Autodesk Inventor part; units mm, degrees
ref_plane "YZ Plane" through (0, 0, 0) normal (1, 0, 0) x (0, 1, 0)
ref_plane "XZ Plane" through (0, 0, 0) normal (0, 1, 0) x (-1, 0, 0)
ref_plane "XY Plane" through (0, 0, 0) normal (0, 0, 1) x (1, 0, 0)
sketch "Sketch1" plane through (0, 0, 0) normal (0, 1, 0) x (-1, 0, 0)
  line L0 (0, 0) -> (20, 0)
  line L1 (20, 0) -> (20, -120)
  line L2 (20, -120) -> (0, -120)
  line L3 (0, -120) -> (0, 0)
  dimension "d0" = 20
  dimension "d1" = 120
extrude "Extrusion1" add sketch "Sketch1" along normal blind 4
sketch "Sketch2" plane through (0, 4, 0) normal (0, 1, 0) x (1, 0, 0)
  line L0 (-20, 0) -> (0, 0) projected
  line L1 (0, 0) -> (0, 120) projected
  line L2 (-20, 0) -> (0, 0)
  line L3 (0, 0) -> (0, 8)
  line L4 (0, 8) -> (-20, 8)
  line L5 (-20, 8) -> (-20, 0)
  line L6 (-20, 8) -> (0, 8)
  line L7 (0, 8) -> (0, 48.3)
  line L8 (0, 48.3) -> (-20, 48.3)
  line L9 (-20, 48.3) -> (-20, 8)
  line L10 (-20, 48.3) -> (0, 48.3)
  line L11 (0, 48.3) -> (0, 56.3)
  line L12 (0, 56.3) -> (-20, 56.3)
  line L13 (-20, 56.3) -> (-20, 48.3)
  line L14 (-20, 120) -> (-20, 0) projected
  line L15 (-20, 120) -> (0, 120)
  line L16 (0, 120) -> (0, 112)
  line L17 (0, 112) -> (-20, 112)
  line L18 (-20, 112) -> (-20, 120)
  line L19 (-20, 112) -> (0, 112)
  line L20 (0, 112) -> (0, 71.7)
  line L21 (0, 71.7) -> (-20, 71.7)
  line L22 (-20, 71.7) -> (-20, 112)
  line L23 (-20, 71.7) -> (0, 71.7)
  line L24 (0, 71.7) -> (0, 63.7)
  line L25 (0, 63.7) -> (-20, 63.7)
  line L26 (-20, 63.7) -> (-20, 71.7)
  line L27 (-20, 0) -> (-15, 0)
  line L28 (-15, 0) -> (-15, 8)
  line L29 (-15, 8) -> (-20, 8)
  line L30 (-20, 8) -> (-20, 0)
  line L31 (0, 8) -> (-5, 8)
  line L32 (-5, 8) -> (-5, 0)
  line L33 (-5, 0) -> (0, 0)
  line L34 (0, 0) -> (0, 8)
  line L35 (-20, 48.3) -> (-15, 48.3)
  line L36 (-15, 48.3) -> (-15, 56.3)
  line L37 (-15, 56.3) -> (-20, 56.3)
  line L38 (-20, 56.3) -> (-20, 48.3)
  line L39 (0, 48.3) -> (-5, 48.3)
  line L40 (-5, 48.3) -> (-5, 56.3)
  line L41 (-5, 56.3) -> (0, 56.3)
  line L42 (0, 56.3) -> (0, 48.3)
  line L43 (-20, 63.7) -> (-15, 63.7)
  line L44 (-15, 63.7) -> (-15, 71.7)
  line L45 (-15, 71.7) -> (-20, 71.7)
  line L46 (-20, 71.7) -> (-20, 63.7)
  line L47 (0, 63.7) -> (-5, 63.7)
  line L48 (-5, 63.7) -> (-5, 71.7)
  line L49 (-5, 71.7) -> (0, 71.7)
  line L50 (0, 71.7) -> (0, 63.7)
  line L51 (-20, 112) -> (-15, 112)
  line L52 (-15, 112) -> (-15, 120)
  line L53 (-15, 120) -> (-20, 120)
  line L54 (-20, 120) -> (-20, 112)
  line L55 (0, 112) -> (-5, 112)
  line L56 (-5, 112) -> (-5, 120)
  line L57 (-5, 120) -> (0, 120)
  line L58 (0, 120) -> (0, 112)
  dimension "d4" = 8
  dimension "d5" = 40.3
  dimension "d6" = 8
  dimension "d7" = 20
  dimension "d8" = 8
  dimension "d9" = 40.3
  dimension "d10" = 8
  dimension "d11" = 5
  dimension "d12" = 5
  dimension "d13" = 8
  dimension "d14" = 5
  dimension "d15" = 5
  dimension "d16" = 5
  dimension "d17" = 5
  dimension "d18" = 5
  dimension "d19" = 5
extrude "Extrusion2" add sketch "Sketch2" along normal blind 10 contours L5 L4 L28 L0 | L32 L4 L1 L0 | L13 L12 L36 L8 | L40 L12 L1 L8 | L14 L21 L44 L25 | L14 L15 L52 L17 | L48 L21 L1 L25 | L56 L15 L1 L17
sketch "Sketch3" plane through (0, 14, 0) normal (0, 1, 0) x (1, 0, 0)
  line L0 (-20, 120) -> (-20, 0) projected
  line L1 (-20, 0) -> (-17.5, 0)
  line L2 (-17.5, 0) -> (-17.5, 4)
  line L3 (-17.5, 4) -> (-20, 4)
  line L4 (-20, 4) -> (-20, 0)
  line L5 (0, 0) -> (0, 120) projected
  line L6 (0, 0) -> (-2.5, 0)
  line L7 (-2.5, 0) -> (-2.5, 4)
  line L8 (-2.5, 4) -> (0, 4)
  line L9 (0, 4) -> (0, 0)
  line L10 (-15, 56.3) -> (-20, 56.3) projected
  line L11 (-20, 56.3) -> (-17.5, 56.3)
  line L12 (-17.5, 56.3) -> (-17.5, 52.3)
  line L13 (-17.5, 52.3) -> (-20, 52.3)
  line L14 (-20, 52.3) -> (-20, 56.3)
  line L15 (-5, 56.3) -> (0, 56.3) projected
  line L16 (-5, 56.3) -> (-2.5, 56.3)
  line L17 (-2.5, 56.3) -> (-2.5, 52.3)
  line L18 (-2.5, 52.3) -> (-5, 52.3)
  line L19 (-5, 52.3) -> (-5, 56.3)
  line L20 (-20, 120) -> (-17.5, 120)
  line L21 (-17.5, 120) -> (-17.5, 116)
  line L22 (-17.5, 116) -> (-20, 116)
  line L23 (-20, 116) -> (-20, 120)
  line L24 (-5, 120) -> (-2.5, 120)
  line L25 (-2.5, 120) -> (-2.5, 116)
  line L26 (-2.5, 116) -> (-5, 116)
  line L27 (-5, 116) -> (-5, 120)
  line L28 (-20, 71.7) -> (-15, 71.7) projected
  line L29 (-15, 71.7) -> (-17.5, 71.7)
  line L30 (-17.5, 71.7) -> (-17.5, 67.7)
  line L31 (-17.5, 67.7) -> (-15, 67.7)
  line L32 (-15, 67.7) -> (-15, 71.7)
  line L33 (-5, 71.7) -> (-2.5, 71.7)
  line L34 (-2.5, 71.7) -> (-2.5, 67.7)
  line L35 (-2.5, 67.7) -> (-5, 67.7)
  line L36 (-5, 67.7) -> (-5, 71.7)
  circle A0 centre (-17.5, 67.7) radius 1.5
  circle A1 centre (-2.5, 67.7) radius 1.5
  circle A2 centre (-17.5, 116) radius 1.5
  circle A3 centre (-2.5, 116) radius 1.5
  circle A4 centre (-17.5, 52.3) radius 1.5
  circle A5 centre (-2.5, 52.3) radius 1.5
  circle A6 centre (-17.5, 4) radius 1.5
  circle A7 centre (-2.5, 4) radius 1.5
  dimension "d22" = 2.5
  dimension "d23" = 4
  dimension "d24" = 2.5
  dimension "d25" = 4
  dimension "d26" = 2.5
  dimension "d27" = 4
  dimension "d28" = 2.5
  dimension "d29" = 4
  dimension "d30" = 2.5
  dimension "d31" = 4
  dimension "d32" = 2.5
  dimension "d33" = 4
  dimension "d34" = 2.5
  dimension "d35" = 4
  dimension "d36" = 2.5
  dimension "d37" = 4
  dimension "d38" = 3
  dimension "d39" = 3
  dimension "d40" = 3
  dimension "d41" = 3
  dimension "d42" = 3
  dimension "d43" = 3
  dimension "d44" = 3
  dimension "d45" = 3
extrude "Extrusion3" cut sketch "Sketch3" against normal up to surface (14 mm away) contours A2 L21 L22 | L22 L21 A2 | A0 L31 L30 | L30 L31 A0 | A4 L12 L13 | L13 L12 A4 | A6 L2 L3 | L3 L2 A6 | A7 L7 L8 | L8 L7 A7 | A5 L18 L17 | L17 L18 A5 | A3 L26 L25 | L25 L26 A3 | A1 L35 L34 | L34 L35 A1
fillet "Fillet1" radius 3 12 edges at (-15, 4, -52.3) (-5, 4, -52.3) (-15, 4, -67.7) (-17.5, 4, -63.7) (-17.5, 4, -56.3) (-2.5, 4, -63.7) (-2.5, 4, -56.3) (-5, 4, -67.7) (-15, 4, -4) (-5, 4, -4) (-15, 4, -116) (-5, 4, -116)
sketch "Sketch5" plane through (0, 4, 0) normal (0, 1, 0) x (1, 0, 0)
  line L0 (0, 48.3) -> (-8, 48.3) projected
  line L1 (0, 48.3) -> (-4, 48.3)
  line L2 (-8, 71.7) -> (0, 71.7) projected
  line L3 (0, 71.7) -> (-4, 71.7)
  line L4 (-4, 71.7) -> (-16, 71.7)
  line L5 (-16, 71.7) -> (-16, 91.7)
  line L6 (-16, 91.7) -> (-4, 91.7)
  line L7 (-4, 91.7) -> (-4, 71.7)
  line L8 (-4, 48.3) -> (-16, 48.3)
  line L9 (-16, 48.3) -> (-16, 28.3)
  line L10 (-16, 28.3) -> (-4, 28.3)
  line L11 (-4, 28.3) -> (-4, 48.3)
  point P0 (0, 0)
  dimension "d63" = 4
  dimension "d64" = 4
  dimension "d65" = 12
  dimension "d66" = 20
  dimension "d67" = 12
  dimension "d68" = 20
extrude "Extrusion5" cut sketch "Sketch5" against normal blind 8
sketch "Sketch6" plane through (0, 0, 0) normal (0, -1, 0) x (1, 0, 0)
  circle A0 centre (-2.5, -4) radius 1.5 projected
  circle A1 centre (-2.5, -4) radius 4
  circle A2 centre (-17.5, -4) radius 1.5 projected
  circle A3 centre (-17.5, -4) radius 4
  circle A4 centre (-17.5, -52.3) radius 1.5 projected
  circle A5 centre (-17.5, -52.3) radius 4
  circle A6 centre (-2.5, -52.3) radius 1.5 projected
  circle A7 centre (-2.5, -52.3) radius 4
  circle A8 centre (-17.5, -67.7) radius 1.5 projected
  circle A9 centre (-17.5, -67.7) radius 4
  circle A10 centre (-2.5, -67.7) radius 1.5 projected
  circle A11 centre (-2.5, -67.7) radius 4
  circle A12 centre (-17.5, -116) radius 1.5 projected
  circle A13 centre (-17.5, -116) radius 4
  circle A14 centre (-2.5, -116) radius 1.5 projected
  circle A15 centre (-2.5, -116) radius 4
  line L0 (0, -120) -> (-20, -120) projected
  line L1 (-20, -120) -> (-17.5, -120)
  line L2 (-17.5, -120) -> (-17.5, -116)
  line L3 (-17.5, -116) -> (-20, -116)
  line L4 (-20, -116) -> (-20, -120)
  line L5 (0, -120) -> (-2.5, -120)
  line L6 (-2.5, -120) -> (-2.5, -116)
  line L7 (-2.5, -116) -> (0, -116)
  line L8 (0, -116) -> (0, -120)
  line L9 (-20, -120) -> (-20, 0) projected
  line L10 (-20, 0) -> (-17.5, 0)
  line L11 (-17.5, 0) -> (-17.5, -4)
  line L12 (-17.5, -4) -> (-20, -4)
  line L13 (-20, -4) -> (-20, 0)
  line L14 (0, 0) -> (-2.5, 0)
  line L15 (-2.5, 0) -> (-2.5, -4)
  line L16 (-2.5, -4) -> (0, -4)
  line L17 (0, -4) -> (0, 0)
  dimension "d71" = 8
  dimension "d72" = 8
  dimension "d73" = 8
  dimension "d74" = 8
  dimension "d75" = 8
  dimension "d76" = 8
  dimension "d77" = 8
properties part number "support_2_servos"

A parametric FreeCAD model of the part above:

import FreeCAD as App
import Part
import Sketcher

V = App.Vector


def edges_at(feature, points):
    """Names of the edges that pass closest to the given points."""
    edges = feature.Shape.Edges
    near = lambda p: min(range(len(edges)), key=lambda i: edges[i].distToShape(Part.Vertex(*p))[0])
    return sorted({f"Edge{near(p) + 1}" for p in points})


def add_polygon(sketch, points):
    """Adds a closed chain of lines whose ends are joined by coincident constraints."""
    first, n = sketch.GeometryCount, len(points)
    for a, b in zip(points, points[1:] + points[:1]):
        sketch.addGeometry(Part.LineSegment(App.Vector(*a, 0), App.Vector(*b, 0)), False)
    for i in range(n):
        sketch.addConstraint(Sketcher.Constraint("Coincident", first + i, 2, first + (i + 1) % n, 1))

doc = App.newDocument("Part")
body = doc.addObject("PartDesign::Body", "Body")

# Sketch on XZ plane
sketch1 = doc.addObject("Sketcher::SketchObject", "Sketch")
body.addObject(sketch1)
sketch1.AttachmentSupport = (doc.XZ_Plane, [""])
sketch1.MapMode = "FlatFace"
add_polygon(sketch1, [(-20, 0), (0, 0), (0, -120), (-20, -120)])  # lines 0-3
sketch1.addConstraint([
    Sketcher.Constraint("Horizontal", 0),
    Sketcher.Constraint("Vertical", 1),
    Sketcher.Constraint("Horizontal", 2),
    Sketcher.Constraint("Vertical", 3),
    Sketcher.Constraint("Coincident", 0, 2, -1, 1),
    Sketcher.Constraint("DistanceX", 0, 1, 0, 2, 20.0),
    Sketcher.Constraint("DistanceY", 1, 2, 1, 1, 120.0),
])
pad1 = doc.addObject("PartDesign::Pad", "Pad")
body.addObject(pad1)
pad1.Profile = sketch1
pad1.Length = 4
pad1.Reversed = True

# Sketch on XZ plane
sketch2 = doc.addObject("Sketcher::SketchObject", "Sketch001")
body.addObject(sketch2)
sketch2.AttachmentSupport = (doc.XZ_Plane, [""])
sketch2.MapMode = "FlatFace"
sketch2.AttachmentOffset = App.Placement(V(0, 0, -4), App.Rotation())
add_polygon(sketch2, [(-20, -8), (-20, 0), (-15, 0), (-15, -8)])  # lines 0-3
add_polygon(sketch2, [(-5, -8), (-5, 0), (0, 0), (0, -8)])  # lines 4-7
add_polygon(sketch2, [(-20, -56), (-20, -48), (-15, -48), (-15, -56)])  # lines 8-11
add_polygon(sketch2, [(-5, -56), (-5, -48), (0, -48), (0, -56)])  # lines 12-15
add_polygon(sketch2, [(-20, -72), (-20, -64), (-15, -64), (-15, -72)])  # lines 16-19
add_polygon(sketch2, [(-20, -120), (-20, -112), (-15, -112), (-15, -120)])  # lines 20-23
add_polygon(sketch2, [(-5, -72), (-5, -64), (0, -64), (0, -72)])  # lines 24-27
add_polygon(sketch2, [(-5, -120), (-5, -112), (0, -112), (0, -120)])  # lines 28-31
sketch2.addConstraint([
    Sketcher.Constraint("Vertical", 0),
    Sketcher.Constraint("Horizontal", 1),
    Sketcher.Constraint("Vertical", 2),
    Sketcher.Constraint("Horizontal", 3),
    Sketcher.Constraint("Vertical", 4),
    Sketcher.Constraint("Horizontal", 5),
    Sketcher.Constraint("Vertical", 6),
    Sketcher.Constraint("Horizontal", 7),
    Sketcher.Constraint("Vertical", 8),
    Sketcher.Constraint("Horizontal", 9),
    Sketcher.Constraint("Vertical", 10),
    Sketcher.Constraint("Horizontal", 11),
    Sketcher.Constraint("Vertical", 12),
    Sketcher.Constraint("Horizontal", 13),
    Sketcher.Constraint("Vertical", 14),
    Sketcher.Constraint("Horizontal", 15),
    Sketcher.Constraint("Vertical", 16),
    Sketcher.Constraint("Horizontal", 17),
    Sketcher.Constraint("Vertical", 18),
    Sketcher.Constraint("Horizontal", 19),
    Sketcher.Constraint("Vertical", 20),
    Sketcher.Constraint("Horizontal", 21),
    Sketcher.Constraint("Vertical", 22),
    Sketcher.Constraint("Horizontal", 23),
    Sketcher.Constraint("Vertical", 24),
    Sketcher.Constraint("Horizontal", 25),
    Sketcher.Constraint("Vertical", 26),
    Sketcher.Constraint("Horizontal", 27),
    Sketcher.Constraint("Vertical", 28),
    Sketcher.Constraint("Horizontal", 29),
    Sketcher.Constraint("Vertical", 30),
    Sketcher.Constraint("Horizontal", 31),
    Sketcher.Constraint("Coincident", 5, 2, -1, 1),
    Sketcher.Constraint("PointOnObject", 0, 2, -1),
    Sketcher.Constraint("PointOnObject", 13, 2, -2),
    Sketcher.Constraint("PointOnObject", 25, 2, -2),
    Sketcher.Constraint("PointOnObject", 29, 2, -2),
    Sketcher.Constraint("Horizontal", 3, 2, 6, 2),
    Sketcher.Constraint("Horizontal", 9, 2, 12, 2),
    Sketcher.Constraint("Horizontal", 11, 2, 14, 2),
    Sketcher.Constraint("Horizontal", 17, 2, 24, 2),
    Sketcher.Constraint("Horizontal", 19, 2, 26, 2),
    Sketcher.Constraint("Horizontal", 21, 2, 28, 2),
    Sketcher.Constraint("Horizontal", 23, 2, 30, 2),
    Sketcher.Constraint("Vertical", 3, 2, 8, 2),
    Sketcher.Constraint("Vertical", 2, 2, 9, 2),
    Sketcher.Constraint("Vertical", 7, 2, 12, 2),
    Sketcher.Constraint("Vertical", 11, 2, 16, 2),
    Sketcher.Constraint("Vertical", 10, 2, 17, 2),
    Sketcher.Constraint("Vertical", 19, 2, 20, 2),
    Sketcher.Constraint("Vertical", 18, 2, 21, 2),
    Sketcher.Constraint("Vertical", 15, 2, 24, 2),
    Sketcher.Constraint("Vertical", 27, 2, 28, 2),
    Sketcher.Constraint("Equal", 3, 5),
    Sketcher.Constraint("Equal", 6, 8),
    Sketcher.Constraint("Equal", 14, 16),
    Sketcher.Constraint("Equal", 18, 20),
    Sketcher.Constraint("DistanceX", 1, 1, 1, 2, 5.0),
    Sketcher.Constraint("DistanceY", 0, 1, 0, 2, 8.0),
    Sketcher.Constraint("DistanceX", 0, 2, -1, 1, 20.0),
    Sketcher.Constraint("DistanceY", 8, 2, 3, 2, 40.3),
    Sketcher.Constraint("DistanceY", 20, 2, 19, 2, 40.3),
    Sketcher.Constraint("DistanceY", 20, 2, -1, 1, 112.0),
])
pad2 = doc.addObject("PartDesign::Pad", "Pad001")
body.addObject(pad2)
pad2.Profile = sketch2
pad2.Length = 10
pad2.Reversed = True

# Sketch on XZ plane
sketch3 = doc.addObject("Sketcher::SketchObject", "Sketch002")
body.addObject(sketch3)
sketch3.AttachmentSupport = (doc.XZ_Plane, [""])
sketch3.MapMode = "FlatFace"
sketch3.AttachmentOffset = App.Placement(V(0, 0, -14), App.Rotation())
sketch3.addGeometry([
    Part.Circle(V(-17.5, -116, 0), V(0, 0, 1), 1.5),  # 0
    Part.Circle(V(-17.5, -67.7, 0), V(0, 0, 1), 1.5),  # 1
    Part.Circle(V(-17.5, -52.3, 0), V(0, 0, 1), 1.5),  # 2
    Part.Circle(V(-17.5, -4, 0), V(0, 0, 1), 1.5),  # 3
    Part.Circle(V(-2.5, -4, 0), V(0, 0, 1), 1.5),  # 4
    Part.Circle(V(-2.5, -52.3, 0), V(0, 0, 1), 1.5),  # 5
    Part.Circle(V(-2.5, -116, 0), V(0, 0, 1), 1.5),  # 6
    Part.Circle(V(-2.5, -67.7, 0), V(0, 0, 1), 1.5),  # 7
], False)
sketch3.addConstraint([
    Sketcher.Constraint("Equal", 0, 1),
    Sketcher.Constraint("Equal", 1, 2),
    Sketcher.Constraint("Equal", 2, 3),
    Sketcher.Constraint("Equal", 3, 4),
    Sketcher.Constraint("Equal", 4, 5),
    Sketcher.Constraint("Equal", 5, 6),
    Sketcher.Constraint("Equal", 6, 7),
    Sketcher.Constraint("Horizontal", 3, 3, 4, 3),
    Sketcher.Constraint("Horizontal", 2, 3, 5, 3),
    Sketcher.Constraint("Horizontal", 0, 3, 6, 3),
    Sketcher.Constraint("Horizontal", 1, 3, 7, 3),
    Sketcher.Constraint("Vertical", 0, 3, 1, 3),
    Sketcher.Constraint("Vertical", 1, 3, 2, 3),
    Sketcher.Constraint("Vertical", 2, 3, 3, 3),
    Sketcher.Constraint("Vertical", 4, 3, 5, 3),
    Sketcher.Constraint("Vertical", 5, 3, 6, 3),
    Sketcher.Constraint("Vertical", 6, 3, 7, 3),
    Sketcher.Constraint("Diameter", 0, 3.0),
    Sketcher.Constraint("DistanceY", 3, 3, -1, 1, 4.0),
    Sketcher.Constraint("DistanceX", 4, 3, -1, 1, 2.5),
    Sketcher.Constraint("DistanceY", 0, 3, -1, 1, 116.0),
    Sketcher.Constraint("DistanceX", 3, 3, 4, 3, 15.0),
    Sketcher.Constraint("DistanceY", 1, 3, -1, 1, 67.7),
    Sketcher.Constraint("DistanceY", 2, 3, -1, 1, 52.3),
])
pocket1 = doc.addObject("PartDesign::Pocket", "Pocket")
body.addObject(pocket1)
pocket1.Profile = sketch3
pocket1.Length = 14
pocket1.Reversed = True
doc.recompute()

fillet = doc.addObject("PartDesign::Fillet", "Fillet")
body.addObject(fillet)
fillet.Base = (pocket1, edges_at(pocket1, [
    (-15, 4, -52.3),
    (-5, 4, -52.3),
    (-15, 4, -67.7),
    (-17.5, 4, -63.7),
    (-17.5, 4, -56.3),
    (-2.5, 4, -63.7),
    (-2.5, 4, -56.3),
    (-5, 4, -67.7),
    (-15, 4, -4),
    (-5, 4, -4),
    (-15, 4, -116),
    (-5, 4, -116),
]))
fillet.Radius = 3

# Sketch on XZ plane
sketch4 = doc.addObject("Sketcher::SketchObject", "Sketch003")
body.addObject(sketch4)
sketch4.AttachmentSupport = (doc.XZ_Plane, [""])
sketch4.MapMode = "FlatFace"
sketch4.AttachmentOffset = App.Placement(V(0, 0, -4), App.Rotation())
add_polygon(sketch4, [(-4, -28), (-4, -48), (-16, -48), (-16, -28)])  # lines 0-3
add_polygon(sketch4, [(-16, -72), (-4, -72), (-4, -92), (-16, -92)])  # lines 4-7
sketch4.addConstraint([
    Sketcher.Constraint("Vertical", 0),
    Sketcher.Constraint("Horizontal", 1),
    Sketcher.Constraint("Vertical", 2),
    Sketcher.Constraint("Horizontal", 3),
    Sketcher.Constraint("Horizontal", 4),
    Sketcher.Constraint("Vertical", 5),
    Sketcher.Constraint("Horizontal", 6),
    Sketcher.Constraint("Vertical", 7),
    Sketcher.Constraint("Vertical", 3, 2, 4, 2),
    Sketcher.Constraint("Vertical", 2, 2, 6, 2),
    Sketcher.Constraint("Equal", 2, 5),
    Sketcher.Constraint("DistanceX", 1, 2, 1, 1, 12.0),
    Sketcher.Constraint("DistanceY", 0, 2, 0, 1, 20.0),
    Sketcher.Constraint("DistanceX", 0, 2, -1, 1, 4.0),
    Sketcher.Constraint("DistanceY", 0, 2, -1, 1, 48.3),
    Sketcher.Constraint("DistanceY", 4, 2, -1, 1, 71.7),
])
pocket2 = doc.addObject("PartDesign::Pocket", "Pocket001")
body.addObject(pocket2)
pocket2.Profile = sketch4
pocket2.Length = 8
pocket2.Reversed = True

doc.recompute()
